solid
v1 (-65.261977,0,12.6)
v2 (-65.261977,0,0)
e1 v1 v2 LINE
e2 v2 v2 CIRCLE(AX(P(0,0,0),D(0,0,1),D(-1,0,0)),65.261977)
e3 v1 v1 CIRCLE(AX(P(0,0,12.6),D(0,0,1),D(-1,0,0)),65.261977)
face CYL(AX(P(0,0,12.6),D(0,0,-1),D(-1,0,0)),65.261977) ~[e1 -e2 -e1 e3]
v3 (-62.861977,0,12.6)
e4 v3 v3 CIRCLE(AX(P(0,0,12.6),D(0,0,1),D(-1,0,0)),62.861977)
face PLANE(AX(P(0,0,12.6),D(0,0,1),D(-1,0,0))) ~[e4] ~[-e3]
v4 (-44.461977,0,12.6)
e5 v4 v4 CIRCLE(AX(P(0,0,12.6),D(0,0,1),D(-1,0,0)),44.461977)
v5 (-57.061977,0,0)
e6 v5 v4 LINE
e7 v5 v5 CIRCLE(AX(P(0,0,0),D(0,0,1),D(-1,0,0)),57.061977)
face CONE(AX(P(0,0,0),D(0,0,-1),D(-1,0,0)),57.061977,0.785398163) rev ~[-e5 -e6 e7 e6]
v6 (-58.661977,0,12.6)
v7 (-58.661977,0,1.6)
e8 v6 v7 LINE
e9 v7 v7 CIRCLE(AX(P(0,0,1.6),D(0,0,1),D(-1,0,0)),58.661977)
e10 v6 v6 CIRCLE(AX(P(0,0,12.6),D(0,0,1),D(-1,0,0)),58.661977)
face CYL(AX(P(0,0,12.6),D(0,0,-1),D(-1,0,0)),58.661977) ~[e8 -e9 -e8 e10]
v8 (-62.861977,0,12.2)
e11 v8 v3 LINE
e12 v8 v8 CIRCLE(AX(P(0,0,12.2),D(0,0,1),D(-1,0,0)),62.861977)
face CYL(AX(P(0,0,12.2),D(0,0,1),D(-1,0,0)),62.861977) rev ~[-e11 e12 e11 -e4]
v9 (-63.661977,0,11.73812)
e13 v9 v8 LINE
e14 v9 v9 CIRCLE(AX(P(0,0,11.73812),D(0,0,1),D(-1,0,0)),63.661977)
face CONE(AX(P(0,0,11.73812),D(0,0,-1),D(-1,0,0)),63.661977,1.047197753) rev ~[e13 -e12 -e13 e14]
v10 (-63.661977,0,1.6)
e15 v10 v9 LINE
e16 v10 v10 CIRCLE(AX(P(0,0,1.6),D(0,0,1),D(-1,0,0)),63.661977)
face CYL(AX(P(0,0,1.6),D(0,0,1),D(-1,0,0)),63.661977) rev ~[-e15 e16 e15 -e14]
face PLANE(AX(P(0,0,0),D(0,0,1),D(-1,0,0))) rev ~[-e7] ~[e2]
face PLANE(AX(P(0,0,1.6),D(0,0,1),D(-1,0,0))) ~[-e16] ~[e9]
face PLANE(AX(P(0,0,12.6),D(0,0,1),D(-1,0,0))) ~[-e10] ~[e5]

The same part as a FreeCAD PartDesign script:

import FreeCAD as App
import Part
import Sketcher
from FreeCAD import Vector
Q = App.Units.Quantity


def add_polygon(sketch, points):
    """Adds a closed chain of lines whose ends are joined by coincident constraints."""
    first, n = sketch.GeometryCount, len(points)
    for a, b in zip(points, points[1:] + points[:1]):
        sketch.addGeometry(Part.LineSegment(App.Vector(*a, 0), App.Vector(*b, 0)), False)
    for i in range(n):
        sketch.addConstraint(Sketcher.Constraint("Coincident", first + i, 2, first + (i + 1) % n, 1))

doc = App.newDocument("Part")
body = doc.addObject("PartDesign::Body", "Body")

# Sketch on XZ plane
sketch1 = body.newObject("Sketcher::SketchObject", "Sketch")
sketch1.AttachmentSupport = (doc.getObject("XZ_Plane"), [""])
sketch1.MapMode = "FlatFace"
add_polygon(sketch1, [(-65.26, 12.6), (-65.26, 0), (-57.06, 0), (-44.46, 12.6), (-58.66, 12.6), (-58.66, 1.6), (-63.66, 1.6), (-63.66, 11.74), (-62.86, 12.2), (-62.86, 12.6)])  # lines 0-9
sketch1.addConstraint(Sketcher.Constraint("Vertical", 0))
sketch1.addConstraint(Sketcher.Constraint("Horizontal", 1))
sketch1.addConstraint(Sketcher.Constraint("Horizontal", 3))
sketch1.addConstraint(Sketcher.Constraint("Vertical", 4))
sketch1.addConstraint(Sketcher.Constraint("Horizontal", 5))
sketch1.addConstraint(Sketcher.Constraint("Vertical", 6))
sketch1.addConstraint(Sketcher.Constraint("Vertical", 8))
sketch1.addConstraint(Sketcher.Constraint("Horizontal", 9))
sketch1.addConstraint(Sketcher.Constraint("PointOnObject", 0, 2, -1))
sketch1.addConstraint(Sketcher.Constraint("Horizontal", 3, 2, 8, 2))
sketch1.addConstraint(Sketcher.Constraint("DistanceX", 5, 2, 5, 1, 5.0))
sketch1.addConstraint(Sketcher.Constraint("DistanceY", 4, 2, 4, 1, 11.0))
sketch1.addConstraint(Sketcher.Constraint("Angle", 2, Q("45 deg")))
sketch1.addConstraint(Sketcher.Constraint("Angle", 7, Q("29.999988 deg")))
sketch1.addConstraint(Sketcher.Constraint("DistanceX", 1, 1, 1, 2, 8.2))
sketch1.addConstraint(Sketcher.Constraint("DistanceX", 3, 2, 3, 1, 14.2))
sketch1.addConstraint(Sketcher.Constraint("DistanceX", 9, 2, 9, 1, 2.4))
sketch1.addConstraint(Sketcher.Constraint("DistanceY", 0, 2, 0, 1, 12.6))
sketch1.addConstraint(Sketcher.Constraint("DistanceY", 8, 1, 8, 2, 0.4))
sketch1.addConstraint(Sketcher.Constraint("DistanceX", 0, 2, -1, 1, 65.261977))
revolution = body.newObject("PartDesign::Revolution", "Revolution")
revolution.Profile = sketch1
revolution.ReferenceAxis = (sketch1, ["V_Axis"])
revolution.Angle = 360

doc.recompute()
